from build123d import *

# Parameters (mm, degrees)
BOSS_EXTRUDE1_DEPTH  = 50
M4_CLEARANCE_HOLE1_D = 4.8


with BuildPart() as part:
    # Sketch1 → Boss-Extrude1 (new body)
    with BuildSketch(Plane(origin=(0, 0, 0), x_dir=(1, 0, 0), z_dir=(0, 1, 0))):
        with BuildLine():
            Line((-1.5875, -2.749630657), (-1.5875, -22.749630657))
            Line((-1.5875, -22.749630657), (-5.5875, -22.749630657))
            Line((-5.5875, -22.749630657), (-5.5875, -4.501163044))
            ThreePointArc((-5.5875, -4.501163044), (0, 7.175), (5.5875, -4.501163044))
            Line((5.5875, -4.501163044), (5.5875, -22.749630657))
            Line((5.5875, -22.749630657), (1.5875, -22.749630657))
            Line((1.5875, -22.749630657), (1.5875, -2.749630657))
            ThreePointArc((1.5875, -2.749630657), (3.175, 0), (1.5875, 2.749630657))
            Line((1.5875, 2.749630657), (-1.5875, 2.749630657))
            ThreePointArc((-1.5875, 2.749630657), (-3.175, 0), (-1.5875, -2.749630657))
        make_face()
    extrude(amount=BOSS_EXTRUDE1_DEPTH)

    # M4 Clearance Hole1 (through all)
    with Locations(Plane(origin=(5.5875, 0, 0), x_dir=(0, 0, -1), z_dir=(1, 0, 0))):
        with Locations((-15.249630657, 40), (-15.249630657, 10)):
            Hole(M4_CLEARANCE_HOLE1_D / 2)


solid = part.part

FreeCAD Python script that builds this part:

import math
import FreeCAD as App
import Part
import Sketcher

V = App.Vector

doc = App.newDocument("Part")
body = doc.addObject("PartDesign::Body", "Body")

# Sketch on XZ plane
sketch1 = body.newObject("Sketcher::SketchObject", "Sketch")
sketch1.AttachmentSupport = (doc.getObject("XZ_Plane"), [""])
sketch1.MapMode = "FlatFace"
sketch1.addGeometry(Part.LineSegment(V(-1.6, 22.7, 0), V(-1.6, 2.7, 0)), False)
sketch1.addGeometry(Part.ArcOfCircle(Part.Circle(V(0, 0, 0), V(0, 0, 1), 3.2), math.radians(120), math.radians(240)), False)
sketch1.addGeometry(Part.LineSegment(V(-1.6, -2.7, 0), V(1.6, -2.7, 0)), False)
sketch1.addGeometry(Part.ArcOfCircle(Part.Circle(V(0, 0, 0), V(0, 0, 1), 3.2), math.radians(-60), math.radians(60)), False)
sketch1.addGeometry(Part.LineSegment(V(1.6, 2.7, 0), V(1.6, 22.7, 0)), False)
sketch1.addGeometry(Part.LineSegment(V(1.6, 22.7, 0), V(5.6, 22.7, 0)), False)
sketch1.addGeometry(Part.LineSegment(V(5.6, 22.7, 0), V(5.6, 4.5, 0)), False)
sketch1.addGeometry(Part.ArcOfCircle(Part.Circle(V(0, 0, 0), V(0, 0, 1), 7.2), math.radians(141), math.radians(399)), False)
sketch1.addGeometry(Part.LineSegment(V(-5.6, 4.5, 0), V(-5.6, 22.7, 0)), False)
sketch1.addGeometry(Part.LineSegment(V(-5.6, 22.7, 0), V(-1.6, 22.7, 0)), False)
sketch1.addConstraint(Sketcher.Constraint("Coincident", 0, 2, 1, 1))
sketch1.addConstraint(Sketcher.Constraint("Coincident", 1, 2, 2, 1))
sketch1.addConstraint(Sketcher.Constraint("Coincident", 2, 2, 3, 1))
sketch1.addConstraint(Sketcher.Constraint("Coincident", 3, 2, 4, 1))
sketch1.addConstraint(Sketcher.Constraint("Coincident", 4, 2, 5, 1))
sketch1.addConstraint(Sketcher.Constraint("Coincident", 5, 2, 6, 1))
sketch1.addConstraint(Sketcher.Constraint("Coincident", 6, 2, 7, 2))
sketch1.addConstraint(Sketcher.Constraint("Coincident", 7, 1, 8, 1))
sketch1.addConstraint(Sketcher.Constraint("Coincident", 8, 2, 9, 1))
sketch1.addConstraint(Sketcher.Constraint("Coincident", 9, 2, 0, 1))
sketch1.addConstraint(Sketcher.Constraint("Vertical", 0))
sketch1.addConstraint(Sketcher.Constraint("Horizontal", 2))
sketch1.addConstraint(Sketcher.Constraint("Vertical", 4))
sketch1.addConstraint(Sketcher.Constraint("Horizontal", 5))
sketch1.addConstraint(Sketcher.Constraint("Vertical", 6))
sketch1.addConstraint(Sketcher.Constraint("Vertical", 8))
sketch1.addConstraint(Sketcher.Constraint("Horizontal", 9))
sketch1.addConstraint(Sketcher.Constraint("Coincident", 1, 3, -1, 1))
sketch1.addConstraint(Sketcher.Constraint("Coincident", 3, 3, -1, 1))
sketch1.addConstraint(Sketcher.Constraint("Coincident", 7, 3, -1, 1))
sketch1.addConstraint(Sketcher.Constraint("Equal", 1, 3))
sketch1.addConstraint(Sketcher.Constraint("Symmetric", 5, 2, 8, 2, -2))
sketch1.addConstraint(Sketcher.Constraint("Horizontal", 0, 2, 3, 2))
sketch1.addConstraint(Sketcher.Constraint("Vertical", 0, 2, 1, 2))
sketch1.addConstraint(Sketcher.Constraint("DistanceX", 5, 1, 5, 2, 4.0))
sketch1.addConstraint(Sketcher.Constraint("DistanceY", 0, 2, 0, 1, 20.0))
sketch1.addConstraint(Sketcher.Constraint("Radius", 1, 3.175))
sketch1.addConstraint(Sketcher.Constraint("Radius", 7, 7.175))
sketch1.addConstraint(Sketcher.Constraint("DistanceX", 2, 1, 2, 2, 3.175))
pad1 = body.newObject("PartDesign::Pad", "Pad")
pad1.Profile = sketch1
pad1.Length = 50
pad1.Reversed = True

# Sketch on YZ plane
sketch2 = body.newObject("Sketcher::SketchObject", "Sketch001")
sketch2.AttachmentSupport = (doc.getObject("YZ_Plane"), [""])
sketch2.MapMode = "FlatFace"
sketch2.AttachmentOffset = App.Placement(V(0, 0, 5.5875), App.Rotation())
sketch2.addGeometry(Part.Circle(V(40, 15.2, 0), V(0, 0, 1), 2.4), False)
sketch2.addGeometry(Part.Circle(V(10, 15.2, 0), V(0, 0, 1), 2.4), False)
sketch2.addConstraint(Sketcher.Constraint("Equal", 0, 1))
sketch2.addConstraint(Sketcher.Constraint("Horizontal", 0, 3, 1, 3))
sketch2.addConstraint(Sketcher.Constraint("Diameter", 0, 4.8))
sketch2.addConstraint(Sketcher.Constraint("DistanceX", -1, 1, 0, 3, 40.0))
sketch2.addConstraint(Sketcher.Constraint("DistanceX", -1, 1, 1, 3, 10.0))
sketch2.addConstraint(Sketcher.Constraint("DistanceY", -1, 1, 0, 3, 15.249631))
doc.recompute()
hole = body.newObject("PartDesign::Hole", "Hole")
hole.Profile = sketch2
hole.ThreadType = "None"
hole.Diameter = 4.8
hole.DepthType = "ThroughAll"

doc.recompute()
